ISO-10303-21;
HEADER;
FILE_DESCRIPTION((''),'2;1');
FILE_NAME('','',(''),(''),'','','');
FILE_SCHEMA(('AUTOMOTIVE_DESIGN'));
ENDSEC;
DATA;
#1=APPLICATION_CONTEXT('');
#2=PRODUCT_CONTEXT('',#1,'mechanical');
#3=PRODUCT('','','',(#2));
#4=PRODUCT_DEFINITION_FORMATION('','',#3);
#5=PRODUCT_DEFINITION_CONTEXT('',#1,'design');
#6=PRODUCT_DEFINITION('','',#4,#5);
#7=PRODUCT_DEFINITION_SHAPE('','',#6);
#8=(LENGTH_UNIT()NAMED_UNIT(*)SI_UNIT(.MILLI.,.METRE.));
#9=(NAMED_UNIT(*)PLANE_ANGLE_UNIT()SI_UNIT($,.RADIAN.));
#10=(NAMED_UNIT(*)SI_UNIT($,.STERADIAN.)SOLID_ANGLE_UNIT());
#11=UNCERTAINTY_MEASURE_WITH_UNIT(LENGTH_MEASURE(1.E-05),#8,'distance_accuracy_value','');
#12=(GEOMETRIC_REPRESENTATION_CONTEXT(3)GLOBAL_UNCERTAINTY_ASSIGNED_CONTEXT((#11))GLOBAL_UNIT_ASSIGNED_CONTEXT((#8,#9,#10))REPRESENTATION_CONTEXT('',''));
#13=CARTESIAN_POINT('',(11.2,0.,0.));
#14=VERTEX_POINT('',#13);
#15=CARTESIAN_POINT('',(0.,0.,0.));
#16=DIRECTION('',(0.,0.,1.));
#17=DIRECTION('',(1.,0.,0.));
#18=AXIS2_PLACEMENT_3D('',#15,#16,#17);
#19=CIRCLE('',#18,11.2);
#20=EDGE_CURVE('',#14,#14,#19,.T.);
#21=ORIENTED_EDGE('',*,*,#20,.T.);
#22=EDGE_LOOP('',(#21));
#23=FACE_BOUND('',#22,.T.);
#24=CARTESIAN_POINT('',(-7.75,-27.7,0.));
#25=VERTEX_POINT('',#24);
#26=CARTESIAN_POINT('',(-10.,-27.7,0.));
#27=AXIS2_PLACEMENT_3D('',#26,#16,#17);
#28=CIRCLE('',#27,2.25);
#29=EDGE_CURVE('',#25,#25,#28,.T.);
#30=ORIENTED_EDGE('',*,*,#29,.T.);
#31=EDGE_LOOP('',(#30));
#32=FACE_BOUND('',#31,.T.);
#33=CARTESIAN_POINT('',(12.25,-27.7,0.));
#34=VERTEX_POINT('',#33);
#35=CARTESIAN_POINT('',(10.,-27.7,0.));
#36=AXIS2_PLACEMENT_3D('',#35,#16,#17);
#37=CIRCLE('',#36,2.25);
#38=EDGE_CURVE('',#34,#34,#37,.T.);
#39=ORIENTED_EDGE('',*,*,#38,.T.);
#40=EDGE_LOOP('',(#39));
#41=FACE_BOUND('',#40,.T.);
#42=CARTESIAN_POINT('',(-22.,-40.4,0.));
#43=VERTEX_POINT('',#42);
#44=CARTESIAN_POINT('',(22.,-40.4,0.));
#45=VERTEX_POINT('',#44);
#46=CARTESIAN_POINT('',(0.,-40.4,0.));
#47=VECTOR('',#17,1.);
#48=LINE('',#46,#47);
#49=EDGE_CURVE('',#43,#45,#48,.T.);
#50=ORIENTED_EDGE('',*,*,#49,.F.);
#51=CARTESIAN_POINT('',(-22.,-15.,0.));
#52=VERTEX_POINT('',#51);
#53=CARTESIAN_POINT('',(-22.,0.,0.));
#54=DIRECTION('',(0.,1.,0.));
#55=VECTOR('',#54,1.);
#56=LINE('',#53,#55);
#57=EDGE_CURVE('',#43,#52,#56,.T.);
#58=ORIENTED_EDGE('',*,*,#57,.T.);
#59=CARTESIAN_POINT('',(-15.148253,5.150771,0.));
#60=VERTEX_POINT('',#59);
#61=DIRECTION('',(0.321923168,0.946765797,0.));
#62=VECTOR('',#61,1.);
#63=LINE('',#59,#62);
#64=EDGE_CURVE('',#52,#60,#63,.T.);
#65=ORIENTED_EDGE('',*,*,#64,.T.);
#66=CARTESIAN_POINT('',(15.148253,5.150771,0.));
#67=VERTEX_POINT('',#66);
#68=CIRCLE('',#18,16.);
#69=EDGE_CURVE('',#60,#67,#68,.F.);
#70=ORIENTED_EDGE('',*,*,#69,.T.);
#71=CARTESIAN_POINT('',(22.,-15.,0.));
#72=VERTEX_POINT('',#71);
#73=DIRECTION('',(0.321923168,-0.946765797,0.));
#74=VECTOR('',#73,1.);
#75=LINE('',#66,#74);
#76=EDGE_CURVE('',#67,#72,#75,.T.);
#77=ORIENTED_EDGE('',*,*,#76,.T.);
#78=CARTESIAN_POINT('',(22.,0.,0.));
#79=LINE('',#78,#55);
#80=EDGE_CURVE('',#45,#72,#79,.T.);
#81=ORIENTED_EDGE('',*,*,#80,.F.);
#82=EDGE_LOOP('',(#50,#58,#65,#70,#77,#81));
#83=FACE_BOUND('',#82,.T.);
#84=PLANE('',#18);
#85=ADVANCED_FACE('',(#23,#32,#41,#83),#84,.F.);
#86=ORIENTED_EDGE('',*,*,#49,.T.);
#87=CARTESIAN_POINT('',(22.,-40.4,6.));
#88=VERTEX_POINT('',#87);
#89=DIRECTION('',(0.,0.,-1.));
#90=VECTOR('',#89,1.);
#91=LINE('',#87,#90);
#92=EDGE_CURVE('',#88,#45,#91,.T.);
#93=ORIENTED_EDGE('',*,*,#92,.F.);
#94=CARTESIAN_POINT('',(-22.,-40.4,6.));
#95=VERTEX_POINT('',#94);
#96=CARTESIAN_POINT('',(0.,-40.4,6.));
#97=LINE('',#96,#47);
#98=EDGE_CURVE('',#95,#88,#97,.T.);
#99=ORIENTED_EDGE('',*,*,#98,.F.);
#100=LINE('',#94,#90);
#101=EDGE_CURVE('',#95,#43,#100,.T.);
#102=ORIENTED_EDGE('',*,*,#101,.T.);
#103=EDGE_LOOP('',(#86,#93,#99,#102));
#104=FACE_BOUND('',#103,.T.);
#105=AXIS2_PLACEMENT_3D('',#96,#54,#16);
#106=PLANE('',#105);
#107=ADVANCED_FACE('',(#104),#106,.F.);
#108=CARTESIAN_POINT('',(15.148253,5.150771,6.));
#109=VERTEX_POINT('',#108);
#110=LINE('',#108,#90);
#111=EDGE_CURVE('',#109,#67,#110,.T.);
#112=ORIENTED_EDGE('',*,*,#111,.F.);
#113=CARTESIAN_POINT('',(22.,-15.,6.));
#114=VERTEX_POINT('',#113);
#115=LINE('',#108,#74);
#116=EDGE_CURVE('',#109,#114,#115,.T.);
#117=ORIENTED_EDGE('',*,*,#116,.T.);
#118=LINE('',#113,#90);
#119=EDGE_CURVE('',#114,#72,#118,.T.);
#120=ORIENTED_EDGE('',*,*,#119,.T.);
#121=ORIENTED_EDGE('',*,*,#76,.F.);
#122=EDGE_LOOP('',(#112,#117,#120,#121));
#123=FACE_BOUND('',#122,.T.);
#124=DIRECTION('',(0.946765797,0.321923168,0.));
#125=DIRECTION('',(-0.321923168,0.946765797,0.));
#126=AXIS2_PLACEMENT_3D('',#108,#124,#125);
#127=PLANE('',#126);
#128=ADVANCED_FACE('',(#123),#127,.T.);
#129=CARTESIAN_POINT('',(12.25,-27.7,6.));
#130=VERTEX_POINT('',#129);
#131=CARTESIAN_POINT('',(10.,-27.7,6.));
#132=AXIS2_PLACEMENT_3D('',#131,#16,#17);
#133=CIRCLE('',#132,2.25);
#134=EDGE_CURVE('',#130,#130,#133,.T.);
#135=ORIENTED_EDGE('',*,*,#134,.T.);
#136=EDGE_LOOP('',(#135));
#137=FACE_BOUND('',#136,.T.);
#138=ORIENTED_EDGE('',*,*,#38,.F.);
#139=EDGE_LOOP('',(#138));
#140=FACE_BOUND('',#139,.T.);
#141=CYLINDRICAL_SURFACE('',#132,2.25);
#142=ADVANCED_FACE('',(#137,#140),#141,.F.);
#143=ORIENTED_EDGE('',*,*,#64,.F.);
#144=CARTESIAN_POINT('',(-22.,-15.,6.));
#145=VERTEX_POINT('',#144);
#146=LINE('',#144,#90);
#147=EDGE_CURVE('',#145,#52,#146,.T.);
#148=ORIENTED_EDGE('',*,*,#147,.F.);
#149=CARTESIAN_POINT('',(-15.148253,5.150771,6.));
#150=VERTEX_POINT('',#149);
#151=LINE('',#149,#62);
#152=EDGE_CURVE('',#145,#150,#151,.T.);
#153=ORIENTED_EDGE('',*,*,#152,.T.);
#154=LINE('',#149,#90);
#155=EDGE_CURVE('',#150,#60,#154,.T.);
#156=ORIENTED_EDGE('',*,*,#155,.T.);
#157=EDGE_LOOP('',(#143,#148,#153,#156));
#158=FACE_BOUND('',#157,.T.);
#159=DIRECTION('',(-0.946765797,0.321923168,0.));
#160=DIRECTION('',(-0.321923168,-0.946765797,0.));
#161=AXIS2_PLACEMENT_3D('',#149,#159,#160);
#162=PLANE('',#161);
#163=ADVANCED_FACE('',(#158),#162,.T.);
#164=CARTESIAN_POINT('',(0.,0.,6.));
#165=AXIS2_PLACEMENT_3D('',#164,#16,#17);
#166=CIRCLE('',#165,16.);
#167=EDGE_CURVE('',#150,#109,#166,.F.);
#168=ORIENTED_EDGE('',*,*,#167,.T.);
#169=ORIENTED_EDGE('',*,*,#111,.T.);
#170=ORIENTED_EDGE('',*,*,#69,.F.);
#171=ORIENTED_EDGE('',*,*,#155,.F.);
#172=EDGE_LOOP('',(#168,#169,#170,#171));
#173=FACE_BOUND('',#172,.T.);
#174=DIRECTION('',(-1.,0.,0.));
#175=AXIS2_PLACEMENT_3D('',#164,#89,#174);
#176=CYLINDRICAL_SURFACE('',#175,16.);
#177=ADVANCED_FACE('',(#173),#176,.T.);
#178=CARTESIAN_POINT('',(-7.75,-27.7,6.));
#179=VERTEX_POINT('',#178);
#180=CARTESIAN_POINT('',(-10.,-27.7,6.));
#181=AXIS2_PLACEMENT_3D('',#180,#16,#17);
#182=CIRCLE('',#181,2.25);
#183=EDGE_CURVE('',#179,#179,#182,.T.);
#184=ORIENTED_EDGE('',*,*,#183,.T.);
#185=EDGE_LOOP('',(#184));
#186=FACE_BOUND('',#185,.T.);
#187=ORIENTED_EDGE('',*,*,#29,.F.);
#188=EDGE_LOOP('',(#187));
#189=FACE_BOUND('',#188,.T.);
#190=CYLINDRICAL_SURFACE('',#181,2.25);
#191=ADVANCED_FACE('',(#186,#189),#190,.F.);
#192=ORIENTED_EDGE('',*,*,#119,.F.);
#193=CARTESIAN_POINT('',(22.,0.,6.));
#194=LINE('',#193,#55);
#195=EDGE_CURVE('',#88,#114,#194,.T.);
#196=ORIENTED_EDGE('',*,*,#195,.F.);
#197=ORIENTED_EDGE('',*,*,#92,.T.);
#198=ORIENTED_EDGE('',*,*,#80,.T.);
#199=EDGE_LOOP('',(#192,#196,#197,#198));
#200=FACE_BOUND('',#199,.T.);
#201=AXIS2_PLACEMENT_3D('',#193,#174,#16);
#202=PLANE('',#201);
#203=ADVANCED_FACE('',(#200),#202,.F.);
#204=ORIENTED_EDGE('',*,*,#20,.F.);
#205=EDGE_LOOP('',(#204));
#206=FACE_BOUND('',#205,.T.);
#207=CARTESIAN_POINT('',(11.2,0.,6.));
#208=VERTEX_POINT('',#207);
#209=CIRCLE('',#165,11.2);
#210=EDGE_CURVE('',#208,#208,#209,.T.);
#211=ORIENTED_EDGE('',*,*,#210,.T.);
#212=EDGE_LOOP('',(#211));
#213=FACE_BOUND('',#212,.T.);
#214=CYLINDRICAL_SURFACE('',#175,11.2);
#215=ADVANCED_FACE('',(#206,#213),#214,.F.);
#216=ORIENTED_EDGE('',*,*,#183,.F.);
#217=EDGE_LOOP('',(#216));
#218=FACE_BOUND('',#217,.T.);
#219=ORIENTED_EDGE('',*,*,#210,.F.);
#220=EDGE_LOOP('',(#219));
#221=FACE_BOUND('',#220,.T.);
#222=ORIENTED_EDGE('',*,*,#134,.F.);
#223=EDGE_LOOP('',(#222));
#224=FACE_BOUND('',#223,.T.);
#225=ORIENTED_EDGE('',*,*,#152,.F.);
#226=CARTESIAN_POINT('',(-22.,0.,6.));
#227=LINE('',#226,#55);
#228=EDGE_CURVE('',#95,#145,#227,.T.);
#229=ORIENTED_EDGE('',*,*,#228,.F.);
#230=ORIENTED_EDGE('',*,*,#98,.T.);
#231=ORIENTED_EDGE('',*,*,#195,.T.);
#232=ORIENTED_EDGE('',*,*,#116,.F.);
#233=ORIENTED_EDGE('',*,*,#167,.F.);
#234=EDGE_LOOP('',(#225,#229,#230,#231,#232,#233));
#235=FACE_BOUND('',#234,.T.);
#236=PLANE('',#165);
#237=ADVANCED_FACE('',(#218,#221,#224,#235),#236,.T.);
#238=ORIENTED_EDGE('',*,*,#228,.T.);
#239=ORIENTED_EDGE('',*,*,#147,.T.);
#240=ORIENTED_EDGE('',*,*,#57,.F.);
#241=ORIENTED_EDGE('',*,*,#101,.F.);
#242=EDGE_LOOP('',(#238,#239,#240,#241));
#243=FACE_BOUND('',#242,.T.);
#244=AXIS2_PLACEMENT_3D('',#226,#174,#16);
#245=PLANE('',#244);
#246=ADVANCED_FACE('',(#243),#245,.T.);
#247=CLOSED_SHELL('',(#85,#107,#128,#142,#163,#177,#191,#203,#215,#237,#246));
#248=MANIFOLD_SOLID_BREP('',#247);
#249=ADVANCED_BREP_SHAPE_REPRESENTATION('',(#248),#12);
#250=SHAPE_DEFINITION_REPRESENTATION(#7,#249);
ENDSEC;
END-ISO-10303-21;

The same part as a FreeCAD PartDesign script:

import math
import FreeCAD as App
import Part
import Sketcher
Q = App.Units.Quantity

doc = App.newDocument("Part")
body = doc.addObject("PartDesign::Body", "Body")

sketch1 = body.newObject("Sketcher::SketchObject", "Sketch")
sketch1.AttachmentSupport = (doc.getObject("XY_Plane"), [""])
sketch1.MapMode = "FlatFace"
sketch1.addGeometry(Part.ArcOfCircle(Part.Circle(App.Vector(0, 0, 0), App.Vector(0, 0, 1), 16), math.radians(19), math.radians(161)), False)
sketch1.addGeometry(Part.LineSegment(App.Vector(-15, 5, 0), App.Vector(-22, -15, 0)), False)
sketch1.addGeometry(Part.LineSegment(App.Vector(-22, -15, 0), App.Vector(-22, -40, 0)), False)
sketch1.addGeometry(Part.LineSegment(App.Vector(-22, -40, 0), App.Vector(22, -40, 0)), False)
sketch1.addGeometry(Part.LineSegment(App.Vector(22, -40, 0), App.Vector(22, -15, 0)), False)
sketch1.addGeometry(Part.LineSegment(App.Vector(22, -15, 0), App.Vector(15, 5, 0)), False)
sketch1.addGeometry(Part.Circle(App.Vector(0, 0, 0), App.Vector(0, 0, 1), 11), False)
sketch1.addConstraint(Sketcher.Constraint("Tangent", 0, 2, 1, 1))
sketch1.addConstraint(Sketcher.Constraint("Coincident", 1, 2, 2, 1))
sketch1.addConstraint(Sketcher.Constraint("Coincident", 2, 2, 3, 1))
sketch1.addConstraint(Sketcher.Constraint("Coincident", 3, 2, 4, 1))
sketch1.addConstraint(Sketcher.Constraint("Coincident", 4, 2, 5, 1))
sketch1.addConstraint(Sketcher.Constraint("Tangent", 5, 2, 0, 1))
sketch1.addConstraint(Sketcher.Constraint("Vertical", 2))
sketch1.addConstraint(Sketcher.Constraint("Horizontal", 3))
sketch1.addConstraint(Sketcher.Constraint("Vertical", 4))
sketch1.addConstraint(Sketcher.Constraint("Coincident", 0, 3, -1, 1))
sketch1.addConstraint(Sketcher.Constraint("Coincident", 6, 3, -1, 1))
sketch1.addConstraint(Sketcher.Constraint("Symmetric", 1, 2, 4, 2, -2))
sketch1.addConstraint(Sketcher.Constraint("Radius", 0, Q("16 mm")))
sketch1.addConstraint(Sketcher.Constraint("Diameter", 6, Q("22.4 mm")))
sketch1.addConstraint(Sketcher.Constraint("DistanceX", 3, 1, 3, 2, Q("44 mm")))
sketch1.addConstraint(Sketcher.Constraint("DistanceY", 2, 2, 2, 1, Q("25.4 mm")))
sketch1.addConstraint(Sketcher.Constraint("DistanceY", 1, 2, -1, 1, Q("15 mm")))
pad1 = body.newObject("PartDesign::Pad", "Pad")
pad1.Profile = sketch1
pad1.Length = 6

sketch2 = body.newObject("Sketcher::SketchObject", "Sketch001")
sketch2.AttachmentSupport = (doc.getObject("XY_Plane"), [""])
sketch2.MapMode = "FlatFace"
sketch2.AttachmentOffset = App.Placement(App.Vector(0, 0, 6), App.Rotation())
sketch2.addGeometry(Part.Circle(App.Vector(-10, -27.7, 0), App.Vector(0, 0, 1), 2.2), False)
sketch2.addGeometry(Part.Circle(App.Vector(10, -27.7, 0), App.Vector(0, 0, 1), 2.2), False)
sketch2.addConstraint(Sketcher.Constraint("Equal", 0, 1))
sketch2.addConstraint(Sketcher.Constraint("Symmetric", 0, 3, 1, 3, -2))
sketch2.addConstraint(Sketcher.Constraint("Diameter", 0, Q("4.5 mm")))
sketch2.addConstraint(Sketcher.Constraint("DistanceX", 0, 3, -1, 1, Q("10 mm")))
sketch2.addConstraint(Sketcher.Constraint("DistanceY", 0, 3, -1, 1, Q("27.7 mm")))
doc.recompute()
hole = body.newObject("PartDesign::Hole", "Hole")
hole.Profile = sketch2
hole.ThreadType = "None"
hole.Diameter = 4.5
hole.DepthType = "ThroughAll"

doc.recompute()
